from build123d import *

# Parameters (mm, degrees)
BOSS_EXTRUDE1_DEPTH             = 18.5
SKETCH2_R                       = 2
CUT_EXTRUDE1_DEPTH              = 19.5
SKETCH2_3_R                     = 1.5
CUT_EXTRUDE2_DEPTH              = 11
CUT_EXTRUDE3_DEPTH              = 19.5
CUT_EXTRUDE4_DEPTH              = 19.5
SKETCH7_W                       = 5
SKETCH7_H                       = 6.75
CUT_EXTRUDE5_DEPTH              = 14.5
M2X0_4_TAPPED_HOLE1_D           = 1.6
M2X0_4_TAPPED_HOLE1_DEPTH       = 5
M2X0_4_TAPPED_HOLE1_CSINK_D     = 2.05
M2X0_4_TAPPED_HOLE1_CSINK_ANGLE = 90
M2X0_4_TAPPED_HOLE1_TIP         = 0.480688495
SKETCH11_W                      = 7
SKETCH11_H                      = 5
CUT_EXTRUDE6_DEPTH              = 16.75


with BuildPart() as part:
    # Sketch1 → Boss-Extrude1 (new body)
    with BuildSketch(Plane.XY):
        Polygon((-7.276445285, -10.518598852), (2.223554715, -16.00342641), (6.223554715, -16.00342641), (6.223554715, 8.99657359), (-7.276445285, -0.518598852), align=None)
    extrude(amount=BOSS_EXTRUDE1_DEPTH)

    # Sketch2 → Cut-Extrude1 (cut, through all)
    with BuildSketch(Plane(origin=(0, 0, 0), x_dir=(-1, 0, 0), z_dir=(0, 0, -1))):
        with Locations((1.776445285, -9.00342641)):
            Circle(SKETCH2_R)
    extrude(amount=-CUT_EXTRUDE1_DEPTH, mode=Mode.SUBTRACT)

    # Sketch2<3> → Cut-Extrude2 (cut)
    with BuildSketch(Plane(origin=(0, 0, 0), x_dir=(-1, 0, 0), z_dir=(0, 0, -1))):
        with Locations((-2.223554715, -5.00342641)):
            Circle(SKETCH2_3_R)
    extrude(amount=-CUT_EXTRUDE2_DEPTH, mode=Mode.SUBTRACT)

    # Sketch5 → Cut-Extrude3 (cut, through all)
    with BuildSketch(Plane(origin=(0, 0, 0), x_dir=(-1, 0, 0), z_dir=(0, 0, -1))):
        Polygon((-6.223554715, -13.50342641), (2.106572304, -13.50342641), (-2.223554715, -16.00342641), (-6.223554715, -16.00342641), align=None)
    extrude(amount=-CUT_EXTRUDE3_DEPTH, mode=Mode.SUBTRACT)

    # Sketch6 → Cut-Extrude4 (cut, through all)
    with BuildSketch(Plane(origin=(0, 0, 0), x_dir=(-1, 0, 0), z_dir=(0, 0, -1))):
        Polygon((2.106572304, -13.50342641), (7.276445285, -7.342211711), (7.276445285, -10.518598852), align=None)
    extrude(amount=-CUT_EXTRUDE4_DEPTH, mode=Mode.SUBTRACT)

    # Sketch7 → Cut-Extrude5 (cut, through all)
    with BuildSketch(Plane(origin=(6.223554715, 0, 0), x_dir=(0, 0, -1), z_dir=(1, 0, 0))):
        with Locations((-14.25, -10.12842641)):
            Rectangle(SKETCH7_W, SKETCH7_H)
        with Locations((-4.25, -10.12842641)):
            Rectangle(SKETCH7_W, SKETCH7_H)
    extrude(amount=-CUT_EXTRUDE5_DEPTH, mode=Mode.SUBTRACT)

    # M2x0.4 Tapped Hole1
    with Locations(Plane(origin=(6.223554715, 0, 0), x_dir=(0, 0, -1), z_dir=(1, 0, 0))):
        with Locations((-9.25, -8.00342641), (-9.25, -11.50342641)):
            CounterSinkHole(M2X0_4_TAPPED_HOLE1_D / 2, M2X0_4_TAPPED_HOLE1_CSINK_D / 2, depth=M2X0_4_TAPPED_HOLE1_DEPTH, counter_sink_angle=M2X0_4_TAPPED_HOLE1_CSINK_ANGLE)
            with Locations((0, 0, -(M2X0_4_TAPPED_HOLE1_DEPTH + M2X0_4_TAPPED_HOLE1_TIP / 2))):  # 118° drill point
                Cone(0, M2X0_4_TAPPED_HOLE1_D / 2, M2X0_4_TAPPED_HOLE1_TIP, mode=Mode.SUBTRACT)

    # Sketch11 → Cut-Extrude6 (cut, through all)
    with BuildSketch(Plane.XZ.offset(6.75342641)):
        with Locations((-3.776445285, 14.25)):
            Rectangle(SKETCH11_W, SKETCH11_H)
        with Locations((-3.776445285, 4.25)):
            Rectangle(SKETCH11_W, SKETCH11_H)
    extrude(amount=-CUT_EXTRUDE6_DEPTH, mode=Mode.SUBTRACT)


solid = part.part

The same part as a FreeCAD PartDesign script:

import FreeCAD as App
import Part
import Sketcher
from FreeCAD import Vector
Q = App.Units.Quantity


def add_polygon(sketch, points):
    """Adds a closed chain of lines whose ends are joined by coincident constraints."""
    first, n = sketch.GeometryCount, len(points)
    for a, b in zip(points, points[1:] + points[:1]):
        sketch.addGeometry(Part.LineSegment(App.Vector(*a, 0), App.Vector(*b, 0)), False)
    for i in range(n):
        sketch.addConstraint(Sketcher.Constraint("Coincident", first + i, 2, first + (i + 1) % n, 1))

doc = App.newDocument("Part")
params = doc.addObject("Spreadsheet::Sheet", "Params")
for row, (alias, value) in enumerate([
    ("sketch1_width", "4 mm"),
    ("sketch1_height", "25 mm"),
    ("sketch1_height2", "10 mm"),
    ("pad1_length", "18.5 mm"),
    ("sketch2_diameter", "4 mm"),
    ("sketch3_diameter", "3 mm"),
    ("pocket2_length", "11 mm"),
    ("sketch4_width", "4 mm"),
    ("sketch4_length", "5 mm"),
    ("sketch6_height", "5 mm"),
    ("sketch6_width", "6.75 mm"),
    ("sketch7_diameter", "1.6 mm"),
    ("hole_diameter", "1.6 mm"),
    ("hole_depth", "5 mm"),
    ("hole_csink_diameter", "2.05 mm"),
    ("sketch8_width", "7 mm"),
    ("sketch8_height", "5 mm"),
], start=1):
    params.set(f"A{row}", alias)
    params.set(f"B{row}", "=" + value)
    params.setAlias(f"B{row}", alias)

body = doc.addObject("PartDesign::Body", "Body")

# Sketch on XY plane
sketch1 = body.newObject("Sketcher::SketchObject", "Sketch")
sketch1.AttachmentSupport = (doc.getObject("XY_Plane"), [""])
sketch1.MapMode = "FlatFace"
add_polygon(sketch1, [(-7.3, -10.5), (2.2, -16), (6.2, -16), (6.2, 9), (-7.3, -0.5)])  # lines 0-4
sketch1.addConstraint(Sketcher.Constraint("Horizontal", 1))
sketch1.addConstraint(Sketcher.Constraint("Vertical", 2))
sketch1.addConstraint(Sketcher.Constraint("Vertical", 4))
sketch1.addConstraint(Sketcher.Constraint("DistanceX", 1, 1, 1, 2, 4.0))
sketch1.addConstraint(Sketcher.Constraint("DistanceY", 2, 1, 2, 2, 25.0))
sketch1.addConstraint(Sketcher.Constraint("DistanceY", 4, 2, 4, 1, 10.0))
sketch1.addConstraint(Sketcher.Constraint("Angle", 0, Q("-30 deg")))
sketch1.addConstraint(Sketcher.Constraint("DistanceX", 3, 2, 2, 2, 13.5))
sketch1.addConstraint(Sketcher.Constraint("DistanceY", 3, 2, -1, 1, 0.518599))
sketch1.addConstraint(Sketcher.Constraint("DistanceX", -1, 1, 0, 2, 2.223555))
sketch1.setExpression("Constraints[8]", "Params.sketch1_width")
sketch1.setExpression("Constraints[9]", "Params.sketch1_height")
sketch1.setExpression("Constraints[10]", "Params.sketch1_height2")
pad1 = body.newObject("PartDesign::Pad", "Pad")
pad1.Profile = sketch1
pad1.setExpression("Length", "Params.pad1_length")

# Sketch on XY plane
sketch2 = body.newObject("Sketcher::SketchObject", "Sketch001")
sketch2.AttachmentSupport = (doc.getObject("XY_Plane"), [""])
sketch2.MapMode = "FlatFace"
sketch2.addGeometry(Part.Circle(Vector(-1.8, -9, 0), Vector(0, 0, 1), 2), False)
sketch2.addConstraint(Sketcher.Constraint("Diameter", 0, 4.0))
sketch2.addConstraint(Sketcher.Constraint("DistanceX", 0, 3, -1, 1, 1.776445))
sketch2.addConstraint(Sketcher.Constraint("DistanceY", 0, 3, -1, 1, 9.003426))
sketch2.setExpression("Constraints[0]", "Params.sketch2_diameter")
pocket1 = body.newObject("PartDesign::Pocket", "Pocket")
pocket1.Profile = sketch2
pocket1.Type = "ThroughAll"
pocket1.Reversed = True

# Sketch on XY plane
sketch3 = body.newObject("Sketcher::SketchObject", "Sketch002")
sketch3.AttachmentSupport = (doc.getObject("XY_Plane"), [""])
sketch3.MapMode = "FlatFace"
sketch3.addGeometry(Part.Circle(Vector(2.2, -5, 0), Vector(0, 0, 1), 1.5), False)
sketch3.addConstraint(Sketcher.Constraint("Diameter", 0, 3.0))
sketch3.addConstraint(Sketcher.Constraint("DistanceX", -1, 1, 0, 3, 2.223555))
sketch3.addConstraint(Sketcher.Constraint("DistanceY", 0, 3, -1, 1, 5.003426))
sketch3.setExpression("Constraints[0]", "Params.sketch3_diameter")
pocket2 = body.newObject("PartDesign::Pocket", "Pocket001")
pocket2.Profile = sketch3
pocket2.setExpression("Length", "Params.pocket2_length")
pocket2.Reversed = True

# Sketch on XY plane
sketch4 = body.newObject("Sketcher::SketchObject", "Sketch003")
sketch4.AttachmentSupport = (doc.getObject("XY_Plane"), [""])
sketch4.MapMode = "FlatFace"
add_polygon(sketch4, [(-2.1, -13.5), (6.2, -13.5), (6.2, -16), (2.2, -16)])  # lines 0-3
sketch4.addConstraint(Sketcher.Constraint("Horizontal", 0))
sketch4.addConstraint(Sketcher.Constraint("Vertical", 1))
sketch4.addConstraint(Sketcher.Constraint("Horizontal", 2))
sketch4.addConstraint(Sketcher.Constraint("DistanceX", 2, 2, 2, 1, 4.0))
sketch4.addConstraint(Sketcher.Constraint("Angle", 3, Q("150 deg")))
sketch4.addConstraint(Sketcher.Constraint("Distance", 3, 5.0))
sketch4.addConstraint(Sketcher.Constraint("DistanceX", -1, 1, 0, 2, 6.223555))
sketch4.addConstraint(Sketcher.Constraint("DistanceY", 0, 2, -1, 1, 13.503426))
sketch4.setExpression("Constraints[7]", "Params.sketch4_width")
sketch4.setExpression("Constraints[9]", "Params.sketch4_length")
pocket3 = body.newObject("PartDesign::Pocket", "Pocket002")
pocket3.Profile = sketch4
pocket3.Type = "ThroughAll"
pocket3.Reversed = True

# Sketch on XY plane
sketch5 = body.newObject("Sketcher::SketchObject", "Sketch004")
sketch5.AttachmentSupport = (doc.getObject("XY_Plane"), [""])
sketch5.MapMode = "FlatFace"
add_polygon(sketch5, [(-7.3, -7.3), (-2.1, -13.5), (-7.3, -10.5)])  # lines 0-2
sketch5.addConstraint(Sketcher.Constraint("Vertical", 2))
sketch5.addConstraint(Sketcher.Constraint("Angle", 0, Q("-50 deg")))
sketch5.addConstraint(Sketcher.Constraint("Angle", 1, Q("150 deg")))
sketch5.addConstraint(Sketcher.Constraint("DistanceY", 1, 2, -1, 1, 10.518599))
sketch5.addConstraint(Sketcher.Constraint("DistanceY", 2, 1, 2, 2, 3.176387))
sketch5.addConstraint(Sketcher.Constraint("DistanceX", 0, 2, -1, 1, 2.106572))
pocket4 = body.newObject("PartDesign::Pocket", "Pocket003")
pocket4.Profile = sketch5
pocket4.Type = "ThroughAll"
pocket4.Reversed = True

# Sketch on YZ plane
sketch6 = body.newObject("Sketcher::SketchObject", "Sketch005")
sketch6.AttachmentSupport = (doc.getObject("YZ_Plane"), [""])
sketch6.MapMode = "FlatFace"
sketch6.AttachmentOffset = App.Placement(Vector(0, 0, 6.223555), App.Rotation())
add_polygon(sketch6, [(-7, 17), (-14, 17), (-14, 12), (-7, 12)])  # lines 0-3
add_polygon(sketch6, [(-7, 7), (-14, 7), (-14, 2), (-7, 2)])  # lines 4-7
sketch6.addConstraint(Sketcher.Constraint("Horizontal", 0))
sketch6.addConstraint(Sketcher.Constraint("Vertical", 1))
sketch6.addConstraint(Sketcher.Constraint("Horizontal", 2))
sketch6.addConstraint(Sketcher.Constraint("Vertical", 3))
sketch6.addConstraint(Sketcher.Constraint("Horizontal", 4))
sketch6.addConstraint(Sketcher.Constraint("Vertical", 5))
sketch6.addConstraint(Sketcher.Constraint("Horizontal", 6))
sketch6.addConstraint(Sketcher.Constraint("Vertical", 7))
sketch6.addConstraint(Sketcher.Constraint("Vertical", 1, 2, 4, 2))
sketch6.addConstraint(Sketcher.Constraint("Vertical", 3, 2, 6, 2))
sketch6.addConstraint(Sketcher.Constraint("Equal", 3, 5))
sketch6.addConstraint(Sketcher.Constraint("DistanceY", 1, 2, 1, 1, 5.0))
sketch6.addConstraint(Sketcher.Constraint("DistanceY", 4, 2, 1, 2, 5.0))
sketch6.addConstraint(Sketcher.Constraint("DistanceX", 0, 2, 0, 1, 6.75))
sketch6.addConstraint(Sketcher.Constraint("DistanceY", -1, 1, 0, 2, 16.75))
sketch6.addConstraint(Sketcher.Constraint("DistanceX", 0, 2, -1, 1, 13.503426))
sketch6.setExpression("Constraints[19]", "Params.sketch6_height")
sketch6.setExpression("Constraints[21]", "Params.sketch6_width")
pocket5 = body.newObject("PartDesign::Pocket", "Pocket004")
pocket5.Profile = sketch6
pocket5.Type = "ThroughAll"

# Sketch on YZ plane
sketch7 = body.newObject("Sketcher::SketchObject", "Sketch006")
sketch7.AttachmentSupport = (doc.getObject("YZ_Plane"), [""])
sketch7.MapMode = "FlatFace"
sketch7.AttachmentOffset = App.Placement(Vector(0, 0, 6.223555), App.Rotation())
sketch7.addGeometry(Part.Circle(Vector(-8, 9.2, 0), Vector(0, 0, 1), 0.8), False)
sketch7.addGeometry(Part.Circle(Vector(-11.5, 9.2, 0), Vector(0, 0, 1), 0.8), False)
sketch7.addConstraint(Sketcher.Constraint("Equal", 0, 1))
sketch7.addConstraint(Sketcher.Constraint("Horizontal", 0, 3, 1, 3))
sketch7.addConstraint(Sketcher.Constraint("Diameter", 0, 1.6))
sketch7.addConstraint(Sketcher.Constraint("DistanceX", 1, 3, 0, 3, 3.5))
sketch7.addConstraint(Sketcher.Constraint("DistanceY", -1, 1, 0, 3, 9.25))
sketch7.addConstraint(Sketcher.Constraint("DistanceX", 0, 3, -1, 1, 8.003426))
sketch7.setExpression("Constraints[2]", "Params.sketch7_diameter")
doc.recompute()
hole = body.newObject("PartDesign::Hole", "Hole")
hole.Profile = sketch7
hole.ThreadType = "None"
hole.setExpression("Diameter", "Params.hole_diameter")
hole.DepthType = "Dimension"
hole.setExpression("Depth", "Params.hole_depth")
hole.DrillPoint = "Angled"
hole.DrillPointAngle = 118
hole.HoleCutType = "Countersink"
hole.setExpression("HoleCutDiameter", "Params.hole_csink_diameter")
hole.HoleCutCountersinkAngle = 90

# Sketch on XZ plane
sketch8 = body.newObject("Sketcher::SketchObject", "Sketch007")
sketch8.AttachmentSupport = (doc.getObject("XZ_Plane"), [""])
sketch8.MapMode = "FlatFace"
sketch8.AttachmentOffset = App.Placement(Vector(0, 0, 6.753426), App.Rotation())
add_polygon(sketch8, [(-7, 17), (-7, 12), (0, 12), (0, 17)])  # lines 0-3
add_polygon(sketch8, [(-7, 7), (-7, 2), (0, 2), (0, 7)])  # lines 4-7
sketch8.addConstraint(Sketcher.Constraint("Vertical", 0))
sketch8.addConstraint(Sketcher.Constraint("Horizontal", 1))
sketch8.addConstraint(Sketcher.Constraint("Vertical", 2))
sketch8.addConstraint(Sketcher.Constraint("Horizontal", 3))
sketch8.addConstraint(Sketcher.Constraint("Vertical", 4))
sketch8.addConstraint(Sketcher.Constraint("Horizontal", 5))
sketch8.addConstraint(Sketcher.Constraint("Vertical", 6))
sketch8.addConstraint(Sketcher.Constraint("Horizontal", 7))
sketch8.addConstraint(Sketcher.Constraint("Vertical", 3, 2, 4, 2))
sketch8.addConstraint(Sketcher.Constraint("Vertical", 2, 2, 5, 2))
sketch8.addConstraint(Sketcher.Constraint("Equal", 2, 4))
sketch8.addConstraint(Sketcher.Constraint("DistanceX", 1, 1, 1, 2, 7.0))
sketch8.addConstraint(Sketcher.Constraint("DistanceY", 0, 2, 0, 1, 5.0))
sketch8.addConstraint(Sketcher.Constraint("DistanceY", 4, 2, 0, 2, 10.0))
sketch8.addConstraint(Sketcher.Constraint("DistanceY", -1, 1, 0, 2, 11.75))
sketch8.addConstraint(Sketcher.Constraint("DistanceX", 0, 2, -1, 1, 7.276445))
sketch8.setExpression("Constraints[19]", "Params.sketch8_width")
sketch8.setExpression("Constraints[20]", "Params.sketch8_height")
pocket6 = body.newObject("PartDesign::Pocket", "Pocket005")
pocket6.Profile = sketch8
pocket6.Type = "ThroughAll"

doc.recompute()
